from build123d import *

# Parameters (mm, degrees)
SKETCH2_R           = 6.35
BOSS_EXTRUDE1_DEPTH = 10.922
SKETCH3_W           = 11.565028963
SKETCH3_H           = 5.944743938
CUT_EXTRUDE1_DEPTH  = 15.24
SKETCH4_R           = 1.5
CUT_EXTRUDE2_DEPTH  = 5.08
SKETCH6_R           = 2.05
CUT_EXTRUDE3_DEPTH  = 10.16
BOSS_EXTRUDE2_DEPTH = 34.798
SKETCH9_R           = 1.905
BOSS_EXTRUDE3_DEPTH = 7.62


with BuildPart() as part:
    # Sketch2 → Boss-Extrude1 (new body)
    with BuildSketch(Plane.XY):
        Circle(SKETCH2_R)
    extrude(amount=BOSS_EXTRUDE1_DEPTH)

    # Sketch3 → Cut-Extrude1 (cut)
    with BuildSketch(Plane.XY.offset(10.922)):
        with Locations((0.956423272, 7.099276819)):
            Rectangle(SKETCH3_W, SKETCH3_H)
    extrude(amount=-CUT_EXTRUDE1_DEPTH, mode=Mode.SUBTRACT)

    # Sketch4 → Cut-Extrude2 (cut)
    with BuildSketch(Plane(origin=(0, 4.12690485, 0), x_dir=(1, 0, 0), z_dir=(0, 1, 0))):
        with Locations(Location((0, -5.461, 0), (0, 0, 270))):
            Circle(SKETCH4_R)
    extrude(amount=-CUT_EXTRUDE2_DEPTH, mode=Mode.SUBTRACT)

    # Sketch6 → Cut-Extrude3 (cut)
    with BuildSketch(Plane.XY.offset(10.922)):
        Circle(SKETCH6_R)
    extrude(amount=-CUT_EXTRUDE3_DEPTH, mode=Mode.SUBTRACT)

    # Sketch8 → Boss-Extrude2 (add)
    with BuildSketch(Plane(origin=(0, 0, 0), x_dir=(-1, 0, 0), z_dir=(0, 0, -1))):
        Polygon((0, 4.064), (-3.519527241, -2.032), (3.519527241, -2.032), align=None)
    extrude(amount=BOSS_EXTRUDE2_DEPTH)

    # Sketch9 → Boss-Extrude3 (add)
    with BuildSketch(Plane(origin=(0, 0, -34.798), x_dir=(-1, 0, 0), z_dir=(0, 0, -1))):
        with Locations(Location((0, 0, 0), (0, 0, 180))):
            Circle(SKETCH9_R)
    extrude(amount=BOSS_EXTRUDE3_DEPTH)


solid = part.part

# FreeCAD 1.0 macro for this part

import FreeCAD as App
import Part
import Sketcher
from FreeCAD import Vector
Q = App.Units.Quantity

doc = App.newDocument("Part")
params = doc.addObject("Spreadsheet::Sheet", "Params")
for row, (alias, value) in enumerate([
    ("sketch1_diameter", "0.5 in"),
    ("pad1_length", "0.43 in"),
    ("pocket1_length", "0.6 in"),
    ("pocket2_length", "0.2 in"),
    ("pocket3_length", "0.4 in"),
    ("pad2_length", "1.37 in"),
    ("sketch6_diameter", "0.15 in"),
    ("pad3_length", "0.3 in"),
], start=1):
    params.set(f"A{row}", alias)
    params.set(f"B{row}", "=" + value)
    params.setAlias(f"B{row}", alias)

body = doc.addObject("PartDesign::Body", "Body")

# Sketch on XY plane
sketch1 = body.newObject("Sketcher::SketchObject", "Sketch")
sketch1.AttachmentSupport = (doc.getObject("XY_Plane"), [""])
sketch1.MapMode = "FlatFace"
sketch1.addGeometry(Part.Circle(Vector(0, 0, 0), Vector(0, 0, 1), 6), False)
sketch1.addConstraint([
    Sketcher.Constraint("Coincident", 0, 3, -1, 1),
    Sketcher.Constraint("Diameter", 0, Q("0.5 in")),
])
sketch1.setExpression("Constraints[1]", "Params.sketch1_diameter")
pad1 = body.newObject("PartDesign::Pad", "Pad")
pad1.Profile = sketch1
pad1.setExpression("Length", "Params.pad1_length")

# Sketch on XY plane
sketch2 = body.newObject("Sketcher::SketchObject", "Sketch001")
sketch2.AttachmentSupport = (doc.getObject("XY_Plane"), [""])
sketch2.MapMode = "FlatFace"
sketch2.AttachmentOffset = App.Placement(Vector(0, 0, 0.43 * 25.4), App.Rotation())
sketch2.addGeometry([
    Part.LineSegment(Vector(-5, 10, 0), Vector(-5, 4, 0)),
    Part.LineSegment(Vector(-5, 4, 0), Vector(7, 4, 0)),
    Part.LineSegment(Vector(7, 4, 0), Vector(7, 10, 0)),
    Part.LineSegment(Vector(7, 10, 0), Vector(-5, 10, 0)),
], False)
sketch2.addConstraint([
    Sketcher.Constraint("Coincident", 0, 2, 1, 1),
    Sketcher.Constraint("Coincident", 1, 2, 2, 1),
    Sketcher.Constraint("Coincident", 2, 2, 3, 1),
    Sketcher.Constraint("Coincident", 3, 2, 0, 1),
    Sketcher.Constraint("Vertical", 0),
    Sketcher.Constraint("Horizontal", 1),
    Sketcher.Constraint("Vertical", 2),
    Sketcher.Constraint("Horizontal", 3),
    Sketcher.Constraint("DistanceX", 1, 1, 1, 2, Q("11.565029 mm")),
    Sketcher.Constraint("DistanceY", 0, 2, 0, 1, Q("5.944744 mm")),
    Sketcher.Constraint("DistanceX", 0, 2, -1, 1, Q("4.826091 mm")),
    Sketcher.Constraint("DistanceY", -1, 1, 2, 2, Q("10.071649 mm")),
])
pocket1 = body.newObject("PartDesign::Pocket", "Pocket")
pocket1.Profile = sketch2
pocket1.setExpression("Length", "Params.pocket1_length")

# Sketch on XZ plane
sketch3 = body.newObject("Sketcher::SketchObject", "Sketch002")
sketch3.AttachmentSupport = (doc.getObject("XZ_Plane"), [""])
sketch3.MapMode = "FlatFace"
sketch3.AttachmentOffset = App.Placement(Vector(0, 0, -4.126905), App.Rotation())
sketch3.addGeometry(Part.Circle(Vector(0, 5.5, 0), Vector(0, 0, 1), 1.5), False)
sketch3.addConstraint([
    Sketcher.Constraint("PointOnObject", 0, 3, -2),
    Sketcher.Constraint("Diameter", 0, Q("3 mm")),
    Sketcher.Constraint("DistanceY", -1, 1, 0, 3, Q("0.215 in")),
])
pocket2 = body.newObject("PartDesign::Pocket", "Pocket001")
pocket2.Profile = sketch3
pocket2.setExpression("Length", "Params.pocket2_length")
pocket2.Reversed = True

# Sketch on XY plane
sketch4 = body.newObject("Sketcher::SketchObject", "Sketch003")
sketch4.AttachmentSupport = (doc.getObject("XY_Plane"), [""])
sketch4.MapMode = "FlatFace"
sketch4.AttachmentOffset = App.Placement(Vector(0, 0, 0.43 * 25.4), App.Rotation())
sketch4.addGeometry(Part.Circle(Vector(0, 0, 0), Vector(0, 0, 1), 2), False)
sketch4.addConstraint([
    Sketcher.Constraint("Coincident", 0, 3, -1, 1),
    Sketcher.Constraint("Diameter", 0, Q("4.1 mm")),
])
pocket3 = body.newObject("PartDesign::Pocket", "Pocket002")
pocket3.Profile = sketch4
pocket3.setExpression("Length", "Params.pocket3_length")

# Sketch on XY plane
sketch5 = body.newObject("Sketcher::SketchObject", "Sketch004")
sketch5.AttachmentSupport = (doc.getObject("XY_Plane"), [""])
sketch5.MapMode = "FlatFace"
sketch5.addGeometry([
    Part.LineSegment(Vector(0, 4, 0), Vector(4, -2, 0)),
    Part.LineSegment(Vector(4, -2, 0), Vector(-4, -2, 0)),
    Part.LineSegment(Vector(-4, -2, 0), Vector(0, 4, 0)),
], False)
sketch5.addConstraint([
    Sketcher.Constraint("Coincident", 0, 2, 1, 1),
    Sketcher.Constraint("Coincident", 1, 2, 2, 1),
    Sketcher.Constraint("Coincident", 2, 2, 0, 1),
    Sketcher.Constraint("Horizontal", 1),
    Sketcher.Constraint("PointOnObject", 2, 2, -2),
    Sketcher.Constraint("Equal", 0, 2),
    Sketcher.Constraint("Angle", 0, Q("-60 deg")),
    Sketcher.Constraint("DistanceY", 0, 2, -1, 1, Q("0.08 in")),
    Sketcher.Constraint("DistanceY", -1, 1, 2, 2, Q("0.16 in")),
])
pad2 = body.newObject("PartDesign::Pad", "Pad001")
pad2.Profile = sketch5
pad2.setExpression("Length", "Params.pad2_length")
pad2.Reversed = True

# Sketch on XY plane
sketch6 = body.newObject("Sketcher::SketchObject", "Sketch005")
sketch6.AttachmentSupport = (doc.getObject("XY_Plane"), [""])
sketch6.MapMode = "FlatFace"
sketch6.AttachmentOffset = App.Placement(Vector(0, 0, -1.37 * 25.4), App.Rotation())
sketch6.addGeometry(Part.Circle(Vector(0, 0, 0), Vector(0, 0, 1), 1.9), False)
sketch6.addConstraint([
    Sketcher.Constraint("Coincident", 0, 3, -1, 1),
    Sketcher.Constraint("Diameter", 0, Q("0.15 in")),
])
sketch6.setExpression("Constraints[1]", "Params.sketch6_diameter")
pad3 = body.newObject("PartDesign::Pad", "Pad002")
pad3.Profile = sketch6
pad3.setExpression("Length", "Params.pad3_length")
pad3.Reversed = True

doc.recompute()
